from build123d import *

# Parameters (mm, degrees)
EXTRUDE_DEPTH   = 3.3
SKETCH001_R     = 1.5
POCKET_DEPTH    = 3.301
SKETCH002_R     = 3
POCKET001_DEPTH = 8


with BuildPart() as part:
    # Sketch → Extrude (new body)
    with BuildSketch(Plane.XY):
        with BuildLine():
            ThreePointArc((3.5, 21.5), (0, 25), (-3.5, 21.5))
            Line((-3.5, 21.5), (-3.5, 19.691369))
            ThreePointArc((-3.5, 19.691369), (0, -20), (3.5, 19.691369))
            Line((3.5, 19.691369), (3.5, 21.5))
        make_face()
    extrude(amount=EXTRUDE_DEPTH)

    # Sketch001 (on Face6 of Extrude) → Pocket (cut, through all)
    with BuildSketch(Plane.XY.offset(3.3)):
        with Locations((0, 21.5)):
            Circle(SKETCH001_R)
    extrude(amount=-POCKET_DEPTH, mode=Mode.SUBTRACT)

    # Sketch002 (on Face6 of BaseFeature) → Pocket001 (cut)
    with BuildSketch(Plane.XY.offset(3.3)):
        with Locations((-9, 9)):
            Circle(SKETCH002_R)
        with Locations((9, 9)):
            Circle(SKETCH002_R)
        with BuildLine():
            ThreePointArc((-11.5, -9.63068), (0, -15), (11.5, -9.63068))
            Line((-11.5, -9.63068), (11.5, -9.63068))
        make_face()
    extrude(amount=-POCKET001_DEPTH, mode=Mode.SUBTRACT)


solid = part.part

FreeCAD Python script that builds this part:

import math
import FreeCAD as App
import Part
import Sketcher

V = App.Vector

doc = App.newDocument("Part")
body = doc.addObject("PartDesign::Body", "Body")

sketch1 = doc.addObject("Sketcher::SketchObject", "Sketch")
body.addObject(sketch1)
sketch1.AttachmentSupport = (doc.XY_Plane, [""])
sketch1.MapMode = "FlatFace"
sketch1.addGeometry(Part.ArcOfCircle(Part.Circle(V(0, 21.5, 0), V(0, 0, 1), 3.5), math.radians(0), math.radians(180)), False)
sketch1.addGeometry(Part.LineSegment(V(-3.5, 21.5, 0), V(-3.5, 19.7, 0)), False)
sketch1.addGeometry(Part.ArcOfCircle(Part.Circle(V(0, 0, 0), V(0, 0, 1), 20), math.radians(100), math.radians(440)), False)
sketch1.addGeometry(Part.LineSegment(V(3.5, 19.7, 0), V(3.5, 21.5, 0)), False)
sketch1.addConstraint(Sketcher.Constraint("Tangent", 0, 2, 1, 1))
sketch1.addConstraint(Sketcher.Constraint("Coincident", 1, 2, 2, 1))
sketch1.addConstraint(Sketcher.Constraint("Coincident", 2, 2, 3, 1))
sketch1.addConstraint(Sketcher.Constraint("Tangent", 3, 2, 0, 1))
sketch1.addConstraint(Sketcher.Constraint("Vertical", 1))
sketch1.addConstraint(Sketcher.Constraint("Vertical", 3))
sketch1.addConstraint(Sketcher.Constraint("Coincident", 2, 3, -1, 1))
sketch1.addConstraint(Sketcher.Constraint("PointOnObject", 0, 3, -2))
sketch1.addConstraint(Sketcher.Constraint("Radius", 2, 20.0))
sketch1.addConstraint(Sketcher.Constraint("Radius", 0, 3.5))
sketch1.addConstraint(Sketcher.Constraint("DistanceY", -1, 1, 0, 3, 21.5))
pad1 = doc.addObject("PartDesign::Pad", "Pad")
body.addObject(pad1)
pad1.Profile = sketch1
pad1.Length = 3.3

sketch2 = doc.addObject("Sketcher::SketchObject", "Sketch001")
body.addObject(sketch2)
sketch2.AttachmentSupport = (doc.XY_Plane, [""])
sketch2.MapMode = "FlatFace"
sketch2.AttachmentOffset = App.Placement(V(0, 0, 3.3), App.Rotation())
sketch2.addGeometry(Part.Circle(V(0, 21.5, 0), V(0, 0, 1), 1.5), False)
sketch2.addConstraint(Sketcher.Constraint("PointOnObject", 0, 3, -2))
sketch2.addConstraint(Sketcher.Constraint("Diameter", 0, 3.0))
sketch2.addConstraint(Sketcher.Constraint("DistanceY", -1, 1, 0, 3, 21.5))
pocket1 = doc.addObject("PartDesign::Pocket", "Pocket")
body.addObject(pocket1)
pocket1.Profile = sketch2
pocket1.Type = "ThroughAll"

sketch3 = doc.addObject("Sketcher::SketchObject", "Sketch002")
body.addObject(sketch3)
sketch3.AttachmentSupport = (doc.XY_Plane, [""])
sketch3.MapMode = "FlatFace"
sketch3.AttachmentOffset = App.Placement(V(0, 0, 3.3), App.Rotation())
sketch3.addGeometry(Part.Circle(V(-9, 9, 0), V(0, 0, 1), 3), False)
sketch3.addGeometry(Part.Circle(V(9, 9, 0), V(0, 0, 1), 3), False)
sketch3.addGeometry(Part.ArcOfCircle(Part.Circle(V(0, 0, 0), V(0, 0, 1), 15), math.radians(-140), math.radians(-40)), False)
sketch3.addGeometry(Part.LineSegment(V(11.5, -9.6, 0), V(-11.5, -9.6, 0)), False)
sketch3.addConstraint(Sketcher.Constraint("Coincident", 2, 1, 3, 2))
sketch3.addConstraint(Sketcher.Constraint("Coincident", 3, 1, 2, 2))
sketch3.addConstraint(Sketcher.Constraint("Horizontal", 3))
sketch3.addConstraint(Sketcher.Constraint("Coincident", 2, 3, -1, 1))
sketch3.addConstraint(Sketcher.Constraint("Equal", 0, 1))
sketch3.addConstraint(Sketcher.Constraint("Symmetric", 0, 3, 1, 3, -2))
sketch3.addConstraint(Sketcher.Constraint("Diameter", 0, 6.0))
sketch3.addConstraint(Sketcher.Constraint("Radius", 2, 15.0))
sketch3.addConstraint(Sketcher.Constraint("DistanceX", 3, 2, 3, 1, 23.0))
sketch3.addConstraint(Sketcher.Constraint("DistanceX", 0, 3, -1, 1, 9.0))
sketch3.addConstraint(Sketcher.Constraint("DistanceY", -1, 1, 0, 3, 9.0))
pocket2 = doc.addObject("PartDesign::Pocket", "Pocket001")
body.addObject(pocket2)
pocket2.Profile = sketch3
pocket2.Length = 8

doc.recompute()
